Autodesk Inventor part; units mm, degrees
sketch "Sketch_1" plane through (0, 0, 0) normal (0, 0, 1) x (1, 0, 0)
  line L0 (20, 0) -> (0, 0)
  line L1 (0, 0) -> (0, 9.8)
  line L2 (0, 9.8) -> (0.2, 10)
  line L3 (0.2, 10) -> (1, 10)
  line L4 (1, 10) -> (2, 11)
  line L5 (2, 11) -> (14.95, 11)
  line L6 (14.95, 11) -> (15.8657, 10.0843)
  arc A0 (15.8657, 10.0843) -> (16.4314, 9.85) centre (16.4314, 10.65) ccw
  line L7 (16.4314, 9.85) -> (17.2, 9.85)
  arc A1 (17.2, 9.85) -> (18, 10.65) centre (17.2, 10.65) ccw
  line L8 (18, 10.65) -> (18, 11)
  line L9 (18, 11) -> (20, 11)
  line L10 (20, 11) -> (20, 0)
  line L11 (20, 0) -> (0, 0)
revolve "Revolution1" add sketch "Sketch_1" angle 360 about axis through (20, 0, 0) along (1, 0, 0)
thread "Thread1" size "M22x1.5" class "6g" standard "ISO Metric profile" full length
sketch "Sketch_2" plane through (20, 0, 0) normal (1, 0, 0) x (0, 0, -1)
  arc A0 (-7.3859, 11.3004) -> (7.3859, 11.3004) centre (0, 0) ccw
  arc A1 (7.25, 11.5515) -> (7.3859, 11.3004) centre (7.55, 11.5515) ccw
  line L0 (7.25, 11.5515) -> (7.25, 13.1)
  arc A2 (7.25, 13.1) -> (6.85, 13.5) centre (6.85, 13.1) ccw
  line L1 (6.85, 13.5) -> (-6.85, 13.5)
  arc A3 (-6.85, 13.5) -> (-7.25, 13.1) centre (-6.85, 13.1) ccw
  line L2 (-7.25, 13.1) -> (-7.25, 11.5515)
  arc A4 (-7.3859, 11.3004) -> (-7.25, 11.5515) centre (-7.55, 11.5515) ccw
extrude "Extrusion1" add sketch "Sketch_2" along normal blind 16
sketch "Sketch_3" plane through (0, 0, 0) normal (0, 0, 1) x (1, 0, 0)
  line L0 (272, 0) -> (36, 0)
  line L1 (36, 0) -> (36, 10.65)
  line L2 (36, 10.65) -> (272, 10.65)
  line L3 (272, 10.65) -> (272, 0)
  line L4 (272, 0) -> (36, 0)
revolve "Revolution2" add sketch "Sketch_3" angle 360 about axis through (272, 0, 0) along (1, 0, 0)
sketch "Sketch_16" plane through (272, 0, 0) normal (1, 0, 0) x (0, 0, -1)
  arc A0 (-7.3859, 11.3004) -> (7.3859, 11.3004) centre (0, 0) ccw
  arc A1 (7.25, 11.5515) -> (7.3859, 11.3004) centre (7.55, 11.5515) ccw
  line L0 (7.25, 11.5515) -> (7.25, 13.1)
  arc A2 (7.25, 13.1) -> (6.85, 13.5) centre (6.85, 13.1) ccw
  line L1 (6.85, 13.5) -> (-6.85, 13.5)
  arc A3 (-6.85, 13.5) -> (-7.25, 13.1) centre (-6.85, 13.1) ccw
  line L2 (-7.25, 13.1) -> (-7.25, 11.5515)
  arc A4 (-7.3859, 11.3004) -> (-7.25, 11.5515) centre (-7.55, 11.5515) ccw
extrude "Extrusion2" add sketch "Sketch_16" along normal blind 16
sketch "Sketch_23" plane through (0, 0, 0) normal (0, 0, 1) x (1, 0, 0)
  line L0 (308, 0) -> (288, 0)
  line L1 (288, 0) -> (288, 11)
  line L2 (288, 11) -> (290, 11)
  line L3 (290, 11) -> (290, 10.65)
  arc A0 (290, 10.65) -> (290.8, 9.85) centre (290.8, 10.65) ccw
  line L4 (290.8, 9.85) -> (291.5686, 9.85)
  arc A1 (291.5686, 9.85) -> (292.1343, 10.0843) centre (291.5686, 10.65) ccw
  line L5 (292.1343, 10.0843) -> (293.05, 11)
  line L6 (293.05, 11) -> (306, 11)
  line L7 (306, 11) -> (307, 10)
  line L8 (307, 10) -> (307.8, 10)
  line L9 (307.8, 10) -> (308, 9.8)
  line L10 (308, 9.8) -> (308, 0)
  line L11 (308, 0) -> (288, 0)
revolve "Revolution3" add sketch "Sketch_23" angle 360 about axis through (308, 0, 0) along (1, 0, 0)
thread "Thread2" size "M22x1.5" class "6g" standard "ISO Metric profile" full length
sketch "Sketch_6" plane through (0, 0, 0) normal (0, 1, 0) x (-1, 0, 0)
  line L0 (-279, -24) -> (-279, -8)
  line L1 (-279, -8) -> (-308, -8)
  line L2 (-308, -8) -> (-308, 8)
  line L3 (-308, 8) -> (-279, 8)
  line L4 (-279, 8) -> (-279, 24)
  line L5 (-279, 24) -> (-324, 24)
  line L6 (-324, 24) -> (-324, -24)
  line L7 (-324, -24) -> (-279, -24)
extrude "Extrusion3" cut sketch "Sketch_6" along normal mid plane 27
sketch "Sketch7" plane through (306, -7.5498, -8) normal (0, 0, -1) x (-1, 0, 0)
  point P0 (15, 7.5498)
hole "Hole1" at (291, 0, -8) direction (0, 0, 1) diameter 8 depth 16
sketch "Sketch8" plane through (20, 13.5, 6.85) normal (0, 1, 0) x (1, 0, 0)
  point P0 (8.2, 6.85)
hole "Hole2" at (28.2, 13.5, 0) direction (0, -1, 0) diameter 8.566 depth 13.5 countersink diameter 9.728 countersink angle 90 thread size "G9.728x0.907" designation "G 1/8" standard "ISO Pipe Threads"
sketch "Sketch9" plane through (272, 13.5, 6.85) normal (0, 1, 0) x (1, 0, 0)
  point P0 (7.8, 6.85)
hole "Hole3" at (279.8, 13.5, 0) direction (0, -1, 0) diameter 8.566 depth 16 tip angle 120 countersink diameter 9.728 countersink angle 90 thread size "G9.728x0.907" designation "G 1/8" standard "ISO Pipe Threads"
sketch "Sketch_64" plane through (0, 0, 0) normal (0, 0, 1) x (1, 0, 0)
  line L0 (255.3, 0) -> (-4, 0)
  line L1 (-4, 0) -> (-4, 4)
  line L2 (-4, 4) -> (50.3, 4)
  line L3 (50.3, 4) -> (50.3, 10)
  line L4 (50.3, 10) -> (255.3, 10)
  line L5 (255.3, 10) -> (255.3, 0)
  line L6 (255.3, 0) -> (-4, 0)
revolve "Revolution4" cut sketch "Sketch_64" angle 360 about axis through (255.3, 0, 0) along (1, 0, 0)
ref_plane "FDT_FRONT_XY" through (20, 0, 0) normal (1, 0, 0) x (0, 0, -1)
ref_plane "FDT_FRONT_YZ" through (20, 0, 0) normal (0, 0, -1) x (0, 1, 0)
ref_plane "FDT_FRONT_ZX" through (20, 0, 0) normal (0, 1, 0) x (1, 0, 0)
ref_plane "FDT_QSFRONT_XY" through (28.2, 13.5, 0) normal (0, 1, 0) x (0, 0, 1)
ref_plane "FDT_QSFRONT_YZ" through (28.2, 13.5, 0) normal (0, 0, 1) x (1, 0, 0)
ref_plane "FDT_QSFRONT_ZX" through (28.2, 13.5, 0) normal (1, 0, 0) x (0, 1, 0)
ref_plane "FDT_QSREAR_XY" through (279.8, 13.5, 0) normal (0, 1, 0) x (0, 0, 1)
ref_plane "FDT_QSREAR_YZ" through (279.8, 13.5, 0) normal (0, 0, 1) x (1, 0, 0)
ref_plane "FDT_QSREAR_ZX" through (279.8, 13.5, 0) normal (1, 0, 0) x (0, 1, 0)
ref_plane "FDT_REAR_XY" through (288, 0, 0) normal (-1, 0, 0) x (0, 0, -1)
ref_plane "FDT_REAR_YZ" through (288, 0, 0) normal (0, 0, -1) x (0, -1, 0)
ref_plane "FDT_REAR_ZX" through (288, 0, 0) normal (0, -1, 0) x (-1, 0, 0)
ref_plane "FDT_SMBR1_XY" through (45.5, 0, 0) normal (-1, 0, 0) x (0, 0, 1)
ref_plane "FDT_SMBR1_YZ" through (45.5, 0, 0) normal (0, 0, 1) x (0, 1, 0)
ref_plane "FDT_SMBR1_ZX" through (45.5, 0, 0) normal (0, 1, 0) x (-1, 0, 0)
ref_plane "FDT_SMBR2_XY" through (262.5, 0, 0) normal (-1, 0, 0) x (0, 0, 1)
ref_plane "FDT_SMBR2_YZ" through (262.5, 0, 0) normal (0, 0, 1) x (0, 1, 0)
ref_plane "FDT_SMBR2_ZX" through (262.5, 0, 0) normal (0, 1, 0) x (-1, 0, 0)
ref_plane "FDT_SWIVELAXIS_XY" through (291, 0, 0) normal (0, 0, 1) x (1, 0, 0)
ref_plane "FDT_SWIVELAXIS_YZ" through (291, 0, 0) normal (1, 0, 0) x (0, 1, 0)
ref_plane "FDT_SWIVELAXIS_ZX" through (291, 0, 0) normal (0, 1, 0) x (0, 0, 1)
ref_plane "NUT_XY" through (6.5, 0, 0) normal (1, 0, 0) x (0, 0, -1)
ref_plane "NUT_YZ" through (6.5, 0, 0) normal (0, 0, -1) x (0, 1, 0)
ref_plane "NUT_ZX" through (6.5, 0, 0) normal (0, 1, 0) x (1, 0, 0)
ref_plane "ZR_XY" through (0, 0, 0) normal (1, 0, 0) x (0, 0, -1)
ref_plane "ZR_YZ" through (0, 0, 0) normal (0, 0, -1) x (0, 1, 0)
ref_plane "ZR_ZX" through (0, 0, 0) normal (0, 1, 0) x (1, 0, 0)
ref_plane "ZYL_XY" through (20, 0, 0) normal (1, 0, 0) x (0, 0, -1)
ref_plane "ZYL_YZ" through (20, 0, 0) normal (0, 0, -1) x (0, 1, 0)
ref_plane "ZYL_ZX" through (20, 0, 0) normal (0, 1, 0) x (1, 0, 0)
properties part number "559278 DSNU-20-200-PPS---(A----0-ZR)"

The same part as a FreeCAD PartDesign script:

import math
import FreeCAD as App
import Part
import Sketcher

V = App.Vector
Q = App.Units.Quantity

doc = App.newDocument("Part")
params = doc.addObject("Spreadsheet::Sheet", "Params")
for row, (alias, value) in enumerate([
    ("sketch1_radius", "0.8 mm"),
    ("sketch1_width", "20 mm"),
    ("sketch1_width2", "2 mm"),
    ("sketch1_height", "11 mm"),
    ("sketch1_width3", "0.8 mm"),
    ("revolution_angle", "360 deg"),
    ("sketch2_radius", "0.3 mm"),
    ("sketch2_radius2", "13.5 mm"),
    ("sketch2_radius3", "0.4 mm"),
    ("sketch2_height", "13.7 mm"),
    ("pad1_length", "16 mm"),
    ("sketch3_width", "236 mm"),
    ("sketch3_height", "10.65 mm"),
    ("revolution2_angle", "360 deg"),
    ("sketch4_radius", "0.3 mm"),
    ("sketch4_radius2", "13.5 mm"),
    ("sketch4_radius3", "0.4 mm"),
    ("sketch4_height", "13.7 mm"),
    ("pad2_length", "16 mm"),
    ("sketch5_radius", "0.8 mm"),
    ("sketch5_width", "20 mm"),
    ("sketch5_width2", "2 mm"),
    ("sketch5_height", "11 mm"),
    ("sketch5_width3", "0.8 mm"),
    ("revolution3_angle", "360 deg"),
    ("sketch6_width", "45 mm"),
    ("sketch6_width2", "29 mm"),
    ("sketch6_height", "16 mm"),
    ("pocket1_length", "27 mm"),
    ("sketch7_diameter", "8 mm"),
    ("hole_diameter", "8 mm"),
    ("hole_depth", "16 mm"),
    ("hole2_diameter", "8.566 mm"),
    ("hole2_depth", "13.5 mm"),
    ("hole2_csink_diameter", "9.728 mm"),
    ("hole3_diameter", "8.566 mm"),
    ("hole3_depth", "16 mm"),
    ("hole3_csink_diameter", "9.728 mm"),
    ("sketch10_width", "205 mm"),
    ("sketch10_height", "10 mm"),
    ("sketch10_height2", "6 mm"),
    ("sketch10_width2", "259.3 mm"),
    ("groove_angle", "360 deg"),
], start=1):
    params.set(f"A{row}", alias)
    params.set(f"B{row}", "=" + value)
    params.setAlias(f"B{row}", alias)

body = doc.addObject("PartDesign::Body", "Body")

sketch1 = body.newObject("Sketcher::SketchObject", "Sketch")
sketch1.AttachmentSupport = (doc.getObject("XY_Plane"), [""])
sketch1.MapMode = "FlatFace"
sketch1.addGeometry([
    Part.LineSegment(V(0, 0, 0), V(20, 0, 0)),
    Part.LineSegment(V(20, 0, 0), V(20, 11, 0)),
    Part.LineSegment(V(20, 11, 0), V(18, 11, 0)),
    Part.LineSegment(V(18, 11, 0), V(18, 10.65, 0)),
    Part.ArcOfCircle(Part.Circle(V(17.2, 10.65, 0), V(0, 0, 1), 0.8), math.radians(-90), math.radians(0)),
    Part.LineSegment(V(17.2, 9.85, 0), V(16.43, 9.85, 0)),
    Part.ArcOfCircle(Part.Circle(V(16.43, 10.65, 0), V(0, 0, 1), 0.8), math.radians(-135), math.radians(-90)),
    Part.LineSegment(V(15.87, 10.08, 0), V(14.95, 11, 0)),
    Part.LineSegment(V(14.95, 11, 0), V(2, 11, 0)),
    Part.LineSegment(V(2, 11, 0), V(1, 10, 0)),
    Part.LineSegment(V(1, 10, 0), V(0.2, 10, 0)),
    Part.LineSegment(V(0.2, 10, 0), V(0, 9.8, 0)),
    Part.LineSegment(V(0, 9.8, 0), V(0, 0, 0)),
], False)
sketch1.addConstraint([
    Sketcher.Constraint("Coincident", 0, 2, 1, 1),
    Sketcher.Constraint("Coincident", 1, 2, 2, 1),
    Sketcher.Constraint("Coincident", 2, 2, 3, 1),
    Sketcher.Constraint("Tangent", 3, 2, 4, 2),
    Sketcher.Constraint("Tangent", 4, 1, 5, 1),
    Sketcher.Constraint("Tangent", 5, 2, 6, 2),
    Sketcher.Constraint("Tangent", 6, 1, 7, 1),
    Sketcher.Constraint("Coincident", 7, 2, 8, 1),
    Sketcher.Constraint("Coincident", 8, 2, 9, 1),
    Sketcher.Constraint("Coincident", 9, 2, 10, 1),
    Sketcher.Constraint("Coincident", 10, 2, 11, 1),
    Sketcher.Constraint("Coincident", 11, 2, 12, 1),
    Sketcher.Constraint("Coincident", 12, 2, 0, 1),
    Sketcher.Constraint("Horizontal", 0),
    Sketcher.Constraint("Vertical", 1),
    Sketcher.Constraint("Horizontal", 2),
    Sketcher.Constraint("Vertical", 3),
    Sketcher.Constraint("Horizontal", 5),
    Sketcher.Constraint("Horizontal", 8),
    Sketcher.Constraint("Horizontal", 10),
    Sketcher.Constraint("Vertical", 12),
    Sketcher.Constraint("Coincident", 12, 2, -1, 1),
    Sketcher.Constraint("Equal", 4, 6),
    Sketcher.Constraint("Perpendicular", 7, 9),
    Sketcher.Constraint("Parallel", 9, 11),
    Sketcher.Constraint("Horizontal", 2, 2, 7, 2),
    Sketcher.Constraint("Radius", 4, Q("0.8 mm")),
    Sketcher.Constraint("DistanceX", 0, 1, 0, 2, Q("20 mm")),
    Sketcher.Constraint("DistanceX", 2, 2, 2, 1, Q("2 mm")),
    Sketcher.Constraint("DistanceY", 1, 1, 1, 2, Q("11 mm")),
    Sketcher.Constraint("Angle", 7, Q("135 deg")),
    Sketcher.Constraint("DistanceX", 10, 2, 10, 1, Q("0.8 mm")),
    Sketcher.Constraint("DistanceY", 12, 2, 12, 1, Q("9.8 mm")),
    Sketcher.Constraint("DistanceX", -1, 1, 9, 2, Q("1 mm")),
    Sketcher.Constraint("DistanceX", 8, 2, 8, 1, Q("12.95 mm")),
    Sketcher.Constraint("DistanceY", 3, 2, 3, 1, Q("0.35 mm")),
])
sketch1.setExpression("Constraints[26]", "Params.sketch1_radius")
sketch1.setExpression("Constraints[27]", "Params.sketch1_width")
sketch1.setExpression("Constraints[28]", "Params.sketch1_width2")
sketch1.setExpression("Constraints[29]", "Params.sketch1_height")
sketch1.setExpression("Constraints[31]", "Params.sketch1_width3")
revolution = body.newObject("PartDesign::Revolution", "Revolution")
revolution.Profile = sketch1
revolution.ReferenceAxis = (sketch1, ["H_Axis"])
revolution.setExpression("Angle", "Params.revolution_angle")

sketch2 = body.newObject("Sketcher::SketchObject", "Sketch001")
sketch2.AttachmentSupport = (doc.getObject("YZ_Plane"), [""])
sketch2.MapMode = "FlatFace"
sketch2.AttachmentOffset = App.Placement(V(0, 0, 20), App.Rotation())
sketch2.addGeometry([
    Part.ArcOfCircle(Part.Circle(V(11.55, 7.55, 0), V(0, 0, 1), 0.3), math.radians(-147), math.radians(-90)),
    Part.ArcOfCircle(Part.Circle(V(0, 0, 0), V(0, 0, 1), 13.5), math.radians(33), math.radians(327)),
    Part.ArcOfCircle(Part.Circle(V(11.55, -7.55, 0), V(0, 0, 1), 0.3), math.radians(90), math.radians(147)),
    Part.LineSegment(V(11.55, -7.25, 0), V(13.1, -7.25, 0)),
    Part.ArcOfCircle(Part.Circle(V(13.1, -6.85, 0), V(0, 0, 1), 0.4), math.radians(-90), math.radians(0)),
    Part.LineSegment(V(13.5, -6.85, 0), V(13.5, 6.85, 0)),
    Part.ArcOfCircle(Part.Circle(V(13.1, 6.85, 0), V(0, 0, 1), 0.4), math.radians(0), math.radians(90)),
    Part.LineSegment(V(13.1, 7.25, 0), V(11.55, 7.25, 0)),
], False)
sketch2.addConstraint([
    Sketcher.Constraint("Tangent", 0, 1, 1, 1),
    Sketcher.Constraint("Tangent", 1, 2, 2, 2),
    Sketcher.Constraint("Tangent", 2, 1, 3, 1),
    Sketcher.Constraint("Tangent", 3, 2, 4, 1),
    Sketcher.Constraint("Tangent", 4, 2, 5, 1),
    Sketcher.Constraint("Tangent", 5, 2, 6, 1),
    Sketcher.Constraint("Tangent", 6, 2, 7, 1),
    Sketcher.Constraint("Tangent", 7, 2, 0, 2),
    Sketcher.Constraint("Horizontal", 3),
    Sketcher.Constraint("Vertical", 5),
    Sketcher.Constraint("Horizontal", 7),
    Sketcher.Constraint("Coincident", 1, 3, -1, 1),
    Sketcher.Constraint("Equal", 0, 2),
    Sketcher.Constraint("Equal", 4, 6),
    Sketcher.Constraint("Vertical", 0, 3, 2, 3),
    Sketcher.Constraint("Radius", 0, Q("0.3 mm")),
    Sketcher.Constraint("Radius", 1, Q("13.5 mm")),
    Sketcher.Constraint("Radius", 4, Q("0.4 mm")),
    Sketcher.Constraint("DistanceY", 5, 1, 5, 2, Q("13.7 mm")),
    Sketcher.Constraint("DistanceX", -1, 1, 4, 3, Q("13.1 mm")),
])
sketch2.setExpression("Constraints[15]", "Params.sketch2_radius")
sketch2.setExpression("Constraints[16]", "Params.sketch2_radius2")
sketch2.setExpression("Constraints[17]", "Params.sketch2_radius3")
sketch2.setExpression("Constraints[18]", "Params.sketch2_height")
pad1 = body.newObject("PartDesign::Pad", "Pad")
pad1.Profile = sketch2
pad1.setExpression("Length", "Params.pad1_length")

sketch3 = body.newObject("Sketcher::SketchObject", "Sketch002")
sketch3.AttachmentSupport = (doc.getObject("XY_Plane"), [""])
sketch3.MapMode = "FlatFace"
sketch3.addGeometry([
    Part.LineSegment(V(36, 0, 0), V(272, 0, 0)),
    Part.LineSegment(V(272, 0, 0), V(272, 11, 0)),
    Part.LineSegment(V(272, 11, 0), V(36, 11, 0)),
    Part.LineSegment(V(36, 11, 0), V(36, 0, 0)),
], False)
sketch3.addConstraint([
    Sketcher.Constraint("Coincident", 0, 2, 1, 1),
    Sketcher.Constraint("Coincident", 1, 2, 2, 1),
    Sketcher.Constraint("Coincident", 2, 2, 3, 1),
    Sketcher.Constraint("Coincident", 3, 2, 0, 1),
    Sketcher.Constraint("Horizontal", 0),
    Sketcher.Constraint("Vertical", 1),
    Sketcher.Constraint("Horizontal", 2),
    Sketcher.Constraint("Vertical", 3),
    Sketcher.Constraint("PointOnObject", 0, 2, -1),
    Sketcher.Constraint("DistanceX", 0, 1, 0, 2, Q("236 mm")),
    Sketcher.Constraint("DistanceX", -1, 1, 0, 2, Q("272 mm")),
    Sketcher.Constraint("DistanceY", 1, 1, 1, 2, Q("10.65 mm")),
])
sketch3.setExpression("Constraints[9]", "Params.sketch3_width")
sketch3.setExpression("Constraints[11]", "Params.sketch3_height")
revolution2 = body.newObject("PartDesign::Revolution", "Revolution001")
revolution2.Profile = sketch3
revolution2.ReferenceAxis = (sketch3, ["H_Axis"])
revolution2.setExpression("Angle", "Params.revolution2_angle")

sketch4 = body.newObject("Sketcher::SketchObject", "Sketch003")
sketch4.AttachmentSupport = (doc.getObject("YZ_Plane"), [""])
sketch4.MapMode = "FlatFace"
sketch4.AttachmentOffset = App.Placement(V(0, 0, 272), App.Rotation())
sketch4.addGeometry([
    Part.ArcOfCircle(Part.Circle(V(11.55, 7.55, 0), V(0, 0, 1), 0.3), math.radians(-147), math.radians(-90)),
    Part.ArcOfCircle(Part.Circle(V(0, 0, 0), V(0, 0, 1), 13.5), math.radians(33), math.radians(327)),
    Part.ArcOfCircle(Part.Circle(V(11.55, -7.55, 0), V(0, 0, 1), 0.3), math.radians(90), math.radians(147)),
    Part.LineSegment(V(11.55, -7.25, 0), V(13.1, -7.25, 0)),
    Part.ArcOfCircle(Part.Circle(V(13.1, -6.85, 0), V(0, 0, 1), 0.4), math.radians(-90), math.radians(0)),
    Part.LineSegment(V(13.5, -6.85, 0), V(13.5, 6.85, 0)),
    Part.ArcOfCircle(Part.Circle(V(13.1, 6.85, 0), V(0, 0, 1), 0.4), math.radians(0), math.radians(90)),
    Part.LineSegment(V(13.1, 7.25, 0), V(11.55, 7.25, 0)),
], False)
sketch4.addConstraint([
    Sketcher.Constraint("Tangent", 0, 1, 1, 1),
    Sketcher.Constraint("Tangent", 1, 2, 2, 2),
    Sketcher.Constraint("Tangent", 2, 1, 3, 1),
    Sketcher.Constraint("Tangent", 3, 2, 4, 1),
    Sketcher.Constraint("Tangent", 4, 2, 5, 1),
    Sketcher.Constraint("Tangent", 5, 2, 6, 1),
    Sketcher.Constraint("Tangent", 6, 2, 7, 1),
    Sketcher.Constraint("Tangent", 7, 2, 0, 2),
    Sketcher.Constraint("Horizontal", 3),
    Sketcher.Constraint("Vertical", 5),
    Sketcher.Constraint("Horizontal", 7),
    Sketcher.Constraint("Coincident", 1, 3, -1, 1),
    Sketcher.Constraint("Equal", 0, 2),
    Sketcher.Constraint("Equal", 4, 6),
    Sketcher.Constraint("Vertical", 0, 3, 2, 3),
    Sketcher.Constraint("Radius", 0, Q("0.3 mm")),
    Sketcher.Constraint("Radius", 1, Q("13.5 mm")),
    Sketcher.Constraint("Radius", 4, Q("0.4 mm")),
    Sketcher.Constraint("DistanceY", 5, 1, 5, 2, Q("13.7 mm")),
    Sketcher.Constraint("DistanceX", -1, 1, 4, 3, Q("13.1 mm")),
])
sketch4.setExpression("Constraints[15]", "Params.sketch4_radius")
sketch4.setExpression("Constraints[16]", "Params.sketch4_radius2")
sketch4.setExpression("Constraints[17]", "Params.sketch4_radius3")
sketch4.setExpression("Constraints[18]", "Params.sketch4_height")
pad2 = body.newObject("PartDesign::Pad", "Pad001")
pad2.Profile = sketch4
pad2.setExpression("Length", "Params.pad2_length")

sketch5 = body.newObject("Sketcher::SketchObject", "Sketch004")
sketch5.AttachmentSupport = (doc.getObject("XY_Plane"), [""])
sketch5.MapMode = "FlatFace"
sketch5.addGeometry([
    Part.LineSegment(V(288, 0, 0), V(308, 0, 0)),
    Part.LineSegment(V(308, 0, 0), V(308, 9.8, 0)),
    Part.LineSegment(V(308, 9.8, 0), V(307.8, 10, 0)),
    Part.LineSegment(V(307.8, 10, 0), V(307, 10, 0)),
    Part.LineSegment(V(307, 10, 0), V(306, 11, 0)),
    Part.LineSegment(V(306, 11, 0), V(293.05, 11, 0)),
    Part.LineSegment(V(293.05, 11, 0), V(292.13, 10.08, 0)),
    Part.ArcOfCircle(Part.Circle(V(291.57, 10.65, 0), V(0, 0, 1), 0.8), math.radians(-90), math.radians(-45)),
    Part.LineSegment(V(291.57, 9.85, 0), V(290.8, 9.85, 0)),
    Part.ArcOfCircle(Part.Circle(V(290.8, 10.65, 0), V(0, 0, 1), 0.8), math.radians(180), math.radians(270)),
    Part.LineSegment(V(290, 10.65, 0), V(290, 11, 0)),
    Part.LineSegment(V(290, 11, 0), V(288, 11, 0)),
    Part.LineSegment(V(288, 11, 0), V(288, 0, 0)),
], False)
sketch5.addConstraint([
    Sketcher.Constraint("Coincident", 0, 2, 1, 1),
    Sketcher.Constraint("Coincident", 1, 2, 2, 1),
    Sketcher.Constraint("Coincident", 2, 2, 3, 1),
    Sketcher.Constraint("Coincident", 3, 2, 4, 1),
    Sketcher.Constraint("Coincident", 4, 2, 5, 1),
    Sketcher.Constraint("Coincident", 5, 2, 6, 1),
    Sketcher.Constraint("Tangent", 6, 2, 7, 2),
    Sketcher.Constraint("Tangent", 7, 1, 8, 1),
    Sketcher.Constraint("Tangent", 8, 2, 9, 2),
    Sketcher.Constraint("Tangent", 9, 1, 10, 1),
    Sketcher.Constraint("Coincident", 10, 2, 11, 1),
    Sketcher.Constraint("Coincident", 11, 2, 12, 1),
    Sketcher.Constraint("Coincident", 12, 2, 0, 1),
    Sketcher.Constraint("Horizontal", 0),
    Sketcher.Constraint("Vertical", 1),
    Sketcher.Constraint("Horizontal", 3),
    Sketcher.Constraint("Horizontal", 5),
    Sketcher.Constraint("Horizontal", 8),
    Sketcher.Constraint("Vertical", 10),
    Sketcher.Constraint("Horizontal", 11),
    Sketcher.Constraint("Vertical", 12),
    Sketcher.Constraint("Equal", 7, 9),
    Sketcher.Constraint("PointOnObject", 0, 2, -1),
    Sketcher.Constraint("Parallel", 2, 4),
    Sketcher.Constraint("Perpendicular", 4, 6),
    Sketcher.Constraint("Horizontal", 5, 2, 10, 2),
    Sketcher.Constraint("Radius", 7, Q("0.8 mm")),
    Sketcher.Constraint("DistanceX", 0, 1, 0, 2, Q("20 mm")),
    Sketcher.Constraint("DistanceX", 11, 2, 11, 1, Q("2 mm")),
    Sketcher.Constraint("DistanceY", 12, 2, 12, 1, Q("11 mm")),
    Sketcher.Constraint("Angle", 2, Q("135 deg")),
    Sketcher.Constraint("DistanceX", 3, 2, 3, 1, Q("0.8 mm")),
    Sketcher.Constraint("DistanceY", 1, 1, 1, 2, Q("9.8 mm")),
    Sketcher.Constraint("DistanceX", -1, 1, 0, 2, Q("308 mm")),
    Sketcher.Constraint("DistanceY", -1, 1, 2, 2, Q("10 mm")),
    Sketcher.Constraint("DistanceX", 5, 2, 5, 1, Q("12.95 mm")),
    Sketcher.Constraint("DistanceY", 10, 1, 10, 2, Q("0.35 mm")),
])
sketch5.setExpression("Constraints[26]", "Params.sketch5_radius")
sketch5.setExpression("Constraints[27]", "Params.sketch5_width")
sketch5.setExpression("Constraints[28]", "Params.sketch5_width2")
sketch5.setExpression("Constraints[29]", "Params.sketch5_height")
sketch5.setExpression("Constraints[31]", "Params.sketch5_width3")
revolution3 = body.newObject("PartDesign::Revolution", "Revolution002")
revolution3.Profile = sketch5
revolution3.ReferenceAxis = (sketch5, ["H_Axis"])
revolution3.setExpression("Angle", "Params.revolution3_angle")

sketch6 = body.newObject("Sketcher::SketchObject", "Sketch005")
sketch6.AttachmentSupport = (doc.getObject("XZ_Plane"), [""])
sketch6.MapMode = "FlatFace"
sketch6.addGeometry([
    Part.LineSegment(V(324, -24, 0), V(279, -24, 0)),
    Part.LineSegment(V(279, -24, 0), V(279, -8, 0)),
    Part.LineSegment(V(279, -8, 0), V(308, -8, 0)),
    Part.LineSegment(V(308, -8, 0), V(308, 8, 0)),
    Part.LineSegment(V(308, 8, 0), V(279, 8, 0)),
    Part.LineSegment(V(279, 8, 0), V(279, 24, 0)),
    Part.LineSegment(V(279, 24, 0), V(324, 24, 0)),
    Part.LineSegment(V(324, 24, 0), V(324, -24, 0)),
], False)
sketch6.addConstraint([
    Sketcher.Constraint("Coincident", 0, 2, 1, 1),
    Sketcher.Constraint("Coincident", 1, 2, 2, 1),
    Sketcher.Constraint("Coincident", 2, 2, 3, 1),
    Sketcher.Constraint("Coincident", 3, 2, 4, 1),
    Sketcher.Constraint("Coincident", 4, 2, 5, 1),
    Sketcher.Constraint("Coincident", 5, 2, 6, 1),
    Sketcher.Constraint("Coincident", 6, 2, 7, 1),
    Sketcher.Constraint("Coincident", 7, 2, 0, 1),
    Sketcher.Constraint("Horizontal", 0),
    Sketcher.Constraint("Vertical", 1),
    Sketcher.Constraint("Horizontal", 2),
    Sketcher.Constraint("Vertical", 3),
    Sketcher.Constraint("Horizontal", 4),
    Sketcher.Constraint("Vertical", 5),
    Sketcher.Constraint("Horizontal", 6),
    Sketcher.Constraint("Vertical", 7),
    Sketcher.Constraint("Symmetric", 1, 2, 4, 2, -1),
    Sketcher.Constraint("Equal", 1, 3),
    Sketcher.Constraint("Equal", 3, 5),
    Sketcher.Constraint("DistanceX", 0, 2, 0, 1, Q("45 mm")),
    Sketcher.Constraint("DistanceX", 2, 1, 2, 2, Q("29 mm")),
    Sketcher.Constraint("DistanceY", 1, 1, 1, 2, Q("16 mm")),
    Sketcher.Constraint("DistanceX", -1, 1, 0, 2, Q("279 mm")),
])
sketch6.setExpression("Constraints[19]", "Params.sketch6_width")
sketch6.setExpression("Constraints[20]", "Params.sketch6_width2")
sketch6.setExpression("Constraints[21]", "Params.sketch6_height")
pocket1 = body.newObject("PartDesign::Pocket", "Pocket")
pocket1.Profile = sketch6
pocket1.setExpression("Length", "Params.pocket1_length")
pocket1.Midplane = True

sketch7 = body.newObject("Sketcher::SketchObject", "Sketch006")
sketch7.AttachmentSupport = (doc.getObject("XY_Plane"), [""])
sketch7.MapMode = "FlatFace"
sketch7.AttachmentOffset = App.Placement(V(0, 0, -8), App.Rotation())
sketch7.addGeometry(Part.Circle(V(291, 0, 0), V(0, 0, 1), 4), False)
sketch7.addConstraint([
    Sketcher.Constraint("PointOnObject", 0, 3, -1),
    Sketcher.Constraint("Diameter", 0, Q("8 mm")),
    Sketcher.Constraint("DistanceX", -1, 1, 0, 3, Q("291 mm")),
])
sketch7.setExpression("Constraints[1]", "Params.sketch7_diameter")
doc.recompute()
hole = body.newObject("PartDesign::Hole", "Hole")
hole.Profile = sketch7
hole.ThreadType = "None"
hole.setExpression("Diameter", "Params.hole_diameter")
hole.DepthType = "Dimension"
hole.setExpression("Depth", "Params.hole_depth")
hole.DrillPoint = "Flat"
hole.Reversed = True

sketch8 = body.newObject("Sketcher::SketchObject", "Sketch007")
sketch8.AttachmentSupport = (doc.getObject("XZ_Plane"), [""])
sketch8.MapMode = "FlatFace"
sketch8.AttachmentOffset = App.Placement(V(0, 0, -13.5), App.Rotation())
sketch8.addGeometry(Part.Circle(V(28.2, 0, 0), V(0, 0, 1), 4.3), False)
sketch8.addConstraint([
    Sketcher.Constraint("PointOnObject", 0, 3, -1),
    Sketcher.Constraint("Diameter", 0, Q("8.566 mm")),
    Sketcher.Constraint("DistanceX", -1, 1, 0, 3, Q("28.2 mm")),
])
doc.recompute()
hole2 = body.newObject("PartDesign::Hole", "Hole001")
hole2.Profile = sketch8
hole2.ThreadType = "None"
hole2.setExpression("Diameter", "Params.hole2_diameter")
hole2.DepthType = "Dimension"
hole2.setExpression("Depth", "Params.hole2_depth")
hole2.DrillPoint = "Flat"
hole2.HoleCutType = "Countersink"
hole2.setExpression("HoleCutDiameter", "Params.hole2_csink_diameter")
hole2.HoleCutCountersinkAngle = 90
hole2.Reversed = True

sketch9 = body.newObject("Sketcher::SketchObject", "Sketch008")
sketch9.AttachmentSupport = (doc.getObject("XZ_Plane"), [""])
sketch9.MapMode = "FlatFace"
sketch9.AttachmentOffset = App.Placement(V(0, 0, -13.5), App.Rotation())
sketch9.addGeometry(Part.Circle(V(279.8, 0, 0), V(0, 0, 1), 4.3), False)
sketch9.addConstraint([
    Sketcher.Constraint("PointOnObject", 0, 3, -1),
    Sketcher.Constraint("Diameter", 0, Q("8.566 mm")),
    Sketcher.Constraint("DistanceX", -1, 1, 0, 3, Q("279.8 mm")),
])
doc.recompute()
hole3 = body.newObject("PartDesign::Hole", "Hole002")
hole3.Profile = sketch9
hole3.ThreadType = "None"
hole3.setExpression("Diameter", "Params.hole3_diameter")
hole3.DepthType = "Dimension"
hole3.setExpression("Depth", "Params.hole3_depth")
hole3.DrillPoint = "Angled"
hole3.DrillPointAngle = 120
hole3.HoleCutType = "Countersink"
hole3.setExpression("HoleCutDiameter", "Params.hole3_csink_diameter")
hole3.HoleCutCountersinkAngle = 90
hole3.Reversed = True

sketch10 = body.newObject("Sketcher::SketchObject", "Sketch009")
sketch10.AttachmentSupport = (doc.getObject("XY_Plane"), [""])
sketch10.MapMode = "FlatFace"
sketch10.addGeometry([
    Part.LineSegment(V(-4, 0, 0), V(255.3, 0, 0)),
    Part.LineSegment(V(255.3, 0, 0), V(255.3, 10, 0)),
    Part.LineSegment(V(255.3, 10, 0), V(50.3, 10, 0)),
    Part.LineSegment(V(50.3, 10, 0), V(50.3, 4, 0)),
    Part.LineSegment(V(50.3, 4, 0), V(-4, 4, 0)),
    Part.LineSegment(V(-4, 4, 0), V(-4, 0, 0)),
], False)
sketch10.addConstraint([
    Sketcher.Constraint("Coincident", 0, 2, 1, 1),
    Sketcher.Constraint("Coincident", 1, 2, 2, 1),
    Sketcher.Constraint("Coincident", 2, 2, 3, 1),
    Sketcher.Constraint("Coincident", 3, 2, 4, 1),
    Sketcher.Constraint("Coincident", 4, 2, 5, 1),
    Sketcher.Constraint("Coincident", 5, 2, 0, 1),
    Sketcher.Constraint("Horizontal", 0),
    Sketcher.Constraint("Vertical", 1),
    Sketcher.Constraint("Horizontal", 2),
    Sketcher.Constraint("Vertical", 3),
    Sketcher.Constraint("Horizontal", 4),
    Sketcher.Constraint("Vertical", 5),
    Sketcher.Constraint("PointOnObject", 0, 2, -1),
    Sketcher.Constraint("DistanceX", 2, 2, 2, 1, Q("205 mm")),
    Sketcher.Constraint("DistanceY", 1, 1, 1, 2, Q("10 mm")),
    Sketcher.Constraint("DistanceY", 3, 2, 3, 1, Q("6 mm")),
    Sketcher.Constraint("DistanceX", 0, 1, 0, 2, Q("259.3 mm")),
    Sketcher.Constraint("DistanceX", 4, 2, -1, 1, Q("4 mm")),
])
sketch10.setExpression("Constraints[13]", "Params.sketch10_width")
sketch10.setExpression("Constraints[14]", "Params.sketch10_height")
sketch10.setExpression("Constraints[15]", "Params.sketch10_height2")
sketch10.setExpression("Constraints[16]", "Params.sketch10_width2")
groove = body.newObject("PartDesign::Groove", "Groove")
groove.Profile = sketch10
groove.ReferenceAxis = (sketch10, ["H_Axis"])
groove.setExpression("Angle", "Params.groove_angle")

doc.recompute()
